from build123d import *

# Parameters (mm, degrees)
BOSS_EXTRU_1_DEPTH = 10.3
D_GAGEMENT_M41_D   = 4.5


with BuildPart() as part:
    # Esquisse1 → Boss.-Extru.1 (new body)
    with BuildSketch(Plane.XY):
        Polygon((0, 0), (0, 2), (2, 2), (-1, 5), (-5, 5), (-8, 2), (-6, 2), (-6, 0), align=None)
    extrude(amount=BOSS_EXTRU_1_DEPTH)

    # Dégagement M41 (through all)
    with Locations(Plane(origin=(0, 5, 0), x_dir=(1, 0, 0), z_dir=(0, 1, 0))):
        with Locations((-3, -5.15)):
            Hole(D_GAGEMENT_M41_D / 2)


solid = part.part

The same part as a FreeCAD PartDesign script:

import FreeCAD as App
import Part
import Sketcher

V = App.Vector


def add_polygon(sketch, points):
    """Adds a closed chain of lines whose ends are joined by coincident constraints."""
    first, n = sketch.GeometryCount, len(points)
    for a, b in zip(points, points[1:] + points[:1]):
        sketch.addGeometry(Part.LineSegment(App.Vector(*a, 0), App.Vector(*b, 0)), False)
    for i in range(n):
        sketch.addConstraint(Sketcher.Constraint("Coincident", first + i, 2, first + (i + 1) % n, 1))

doc = App.newDocument("Part")
body = doc.addObject("PartDesign::Body", "Body")

# Sketch on XY plane
sketch1 = body.newObject("Sketcher::SketchObject", "Sketch")
sketch1.AttachmentSupport = (doc.getObject("XY_Plane"), [""])
sketch1.MapMode = "FlatFace"
add_polygon(sketch1, [(0, 0), (0, 2), (2, 2), (-1, 5), (-5, 5), (-8, 2), (-6, 2), (-6, 0)])  # lines 0-7
sketch1.addConstraint([
    Sketcher.Constraint("Vertical", 0),
    Sketcher.Constraint("Horizontal", 1),
    Sketcher.Constraint("Horizontal", 3),
    Sketcher.Constraint("Horizontal", 5),
    Sketcher.Constraint("Vertical", 6),
    Sketcher.Constraint("Horizontal", 7),
    Sketcher.Constraint("Coincident", 7, 2, -1, 1),
    Sketcher.Constraint("Perpendicular", 2, 4),
    Sketcher.Constraint("Horizontal", 1, 2, 4, 2),
    Sketcher.Constraint("Equal", 1, 5),
    Sketcher.Constraint("Equal", 5, 0),
    Sketcher.Constraint("Equal", 2, 4),
    Sketcher.Constraint("DistanceX", 1, 1, 1, 2, 2.0),
    Sketcher.Constraint("DistanceX", 3, 2, 3, 1, 4.0),
    Sketcher.Constraint("DistanceX", 7, 1, 7, 2, 6.0),
])
pad1 = body.newObject("PartDesign::Pad", "Pad")
pad1.Profile = sketch1
pad1.Length = 10.3

# Sketch on XZ plane
sketch2 = body.newObject("Sketcher::SketchObject", "Sketch001")
sketch2.AttachmentSupport = (doc.getObject("XZ_Plane"), [""])
sketch2.MapMode = "FlatFace"
sketch2.AttachmentOffset = App.Placement(V(0, 0, -5), App.Rotation())
sketch2.addGeometry(Part.Circle(V(-3, 5.15, 0), V(0, 0, 1), 2.25), False)
sketch2.addConstraint([
    Sketcher.Constraint("Diameter", 0, 4.5),
    Sketcher.Constraint("DistanceX", 0, 3, -1, 1, 3.0),
    Sketcher.Constraint("DistanceY", -1, 1, 0, 3, 5.15),
])
doc.recompute()
hole = body.newObject("PartDesign::Hole", "Hole")
hole.Profile = sketch2
hole.ThreadType = "None"
hole.Diameter = 4.5
hole.DepthType = "ThroughAll"
hole.Reversed = True

doc.recompute()
